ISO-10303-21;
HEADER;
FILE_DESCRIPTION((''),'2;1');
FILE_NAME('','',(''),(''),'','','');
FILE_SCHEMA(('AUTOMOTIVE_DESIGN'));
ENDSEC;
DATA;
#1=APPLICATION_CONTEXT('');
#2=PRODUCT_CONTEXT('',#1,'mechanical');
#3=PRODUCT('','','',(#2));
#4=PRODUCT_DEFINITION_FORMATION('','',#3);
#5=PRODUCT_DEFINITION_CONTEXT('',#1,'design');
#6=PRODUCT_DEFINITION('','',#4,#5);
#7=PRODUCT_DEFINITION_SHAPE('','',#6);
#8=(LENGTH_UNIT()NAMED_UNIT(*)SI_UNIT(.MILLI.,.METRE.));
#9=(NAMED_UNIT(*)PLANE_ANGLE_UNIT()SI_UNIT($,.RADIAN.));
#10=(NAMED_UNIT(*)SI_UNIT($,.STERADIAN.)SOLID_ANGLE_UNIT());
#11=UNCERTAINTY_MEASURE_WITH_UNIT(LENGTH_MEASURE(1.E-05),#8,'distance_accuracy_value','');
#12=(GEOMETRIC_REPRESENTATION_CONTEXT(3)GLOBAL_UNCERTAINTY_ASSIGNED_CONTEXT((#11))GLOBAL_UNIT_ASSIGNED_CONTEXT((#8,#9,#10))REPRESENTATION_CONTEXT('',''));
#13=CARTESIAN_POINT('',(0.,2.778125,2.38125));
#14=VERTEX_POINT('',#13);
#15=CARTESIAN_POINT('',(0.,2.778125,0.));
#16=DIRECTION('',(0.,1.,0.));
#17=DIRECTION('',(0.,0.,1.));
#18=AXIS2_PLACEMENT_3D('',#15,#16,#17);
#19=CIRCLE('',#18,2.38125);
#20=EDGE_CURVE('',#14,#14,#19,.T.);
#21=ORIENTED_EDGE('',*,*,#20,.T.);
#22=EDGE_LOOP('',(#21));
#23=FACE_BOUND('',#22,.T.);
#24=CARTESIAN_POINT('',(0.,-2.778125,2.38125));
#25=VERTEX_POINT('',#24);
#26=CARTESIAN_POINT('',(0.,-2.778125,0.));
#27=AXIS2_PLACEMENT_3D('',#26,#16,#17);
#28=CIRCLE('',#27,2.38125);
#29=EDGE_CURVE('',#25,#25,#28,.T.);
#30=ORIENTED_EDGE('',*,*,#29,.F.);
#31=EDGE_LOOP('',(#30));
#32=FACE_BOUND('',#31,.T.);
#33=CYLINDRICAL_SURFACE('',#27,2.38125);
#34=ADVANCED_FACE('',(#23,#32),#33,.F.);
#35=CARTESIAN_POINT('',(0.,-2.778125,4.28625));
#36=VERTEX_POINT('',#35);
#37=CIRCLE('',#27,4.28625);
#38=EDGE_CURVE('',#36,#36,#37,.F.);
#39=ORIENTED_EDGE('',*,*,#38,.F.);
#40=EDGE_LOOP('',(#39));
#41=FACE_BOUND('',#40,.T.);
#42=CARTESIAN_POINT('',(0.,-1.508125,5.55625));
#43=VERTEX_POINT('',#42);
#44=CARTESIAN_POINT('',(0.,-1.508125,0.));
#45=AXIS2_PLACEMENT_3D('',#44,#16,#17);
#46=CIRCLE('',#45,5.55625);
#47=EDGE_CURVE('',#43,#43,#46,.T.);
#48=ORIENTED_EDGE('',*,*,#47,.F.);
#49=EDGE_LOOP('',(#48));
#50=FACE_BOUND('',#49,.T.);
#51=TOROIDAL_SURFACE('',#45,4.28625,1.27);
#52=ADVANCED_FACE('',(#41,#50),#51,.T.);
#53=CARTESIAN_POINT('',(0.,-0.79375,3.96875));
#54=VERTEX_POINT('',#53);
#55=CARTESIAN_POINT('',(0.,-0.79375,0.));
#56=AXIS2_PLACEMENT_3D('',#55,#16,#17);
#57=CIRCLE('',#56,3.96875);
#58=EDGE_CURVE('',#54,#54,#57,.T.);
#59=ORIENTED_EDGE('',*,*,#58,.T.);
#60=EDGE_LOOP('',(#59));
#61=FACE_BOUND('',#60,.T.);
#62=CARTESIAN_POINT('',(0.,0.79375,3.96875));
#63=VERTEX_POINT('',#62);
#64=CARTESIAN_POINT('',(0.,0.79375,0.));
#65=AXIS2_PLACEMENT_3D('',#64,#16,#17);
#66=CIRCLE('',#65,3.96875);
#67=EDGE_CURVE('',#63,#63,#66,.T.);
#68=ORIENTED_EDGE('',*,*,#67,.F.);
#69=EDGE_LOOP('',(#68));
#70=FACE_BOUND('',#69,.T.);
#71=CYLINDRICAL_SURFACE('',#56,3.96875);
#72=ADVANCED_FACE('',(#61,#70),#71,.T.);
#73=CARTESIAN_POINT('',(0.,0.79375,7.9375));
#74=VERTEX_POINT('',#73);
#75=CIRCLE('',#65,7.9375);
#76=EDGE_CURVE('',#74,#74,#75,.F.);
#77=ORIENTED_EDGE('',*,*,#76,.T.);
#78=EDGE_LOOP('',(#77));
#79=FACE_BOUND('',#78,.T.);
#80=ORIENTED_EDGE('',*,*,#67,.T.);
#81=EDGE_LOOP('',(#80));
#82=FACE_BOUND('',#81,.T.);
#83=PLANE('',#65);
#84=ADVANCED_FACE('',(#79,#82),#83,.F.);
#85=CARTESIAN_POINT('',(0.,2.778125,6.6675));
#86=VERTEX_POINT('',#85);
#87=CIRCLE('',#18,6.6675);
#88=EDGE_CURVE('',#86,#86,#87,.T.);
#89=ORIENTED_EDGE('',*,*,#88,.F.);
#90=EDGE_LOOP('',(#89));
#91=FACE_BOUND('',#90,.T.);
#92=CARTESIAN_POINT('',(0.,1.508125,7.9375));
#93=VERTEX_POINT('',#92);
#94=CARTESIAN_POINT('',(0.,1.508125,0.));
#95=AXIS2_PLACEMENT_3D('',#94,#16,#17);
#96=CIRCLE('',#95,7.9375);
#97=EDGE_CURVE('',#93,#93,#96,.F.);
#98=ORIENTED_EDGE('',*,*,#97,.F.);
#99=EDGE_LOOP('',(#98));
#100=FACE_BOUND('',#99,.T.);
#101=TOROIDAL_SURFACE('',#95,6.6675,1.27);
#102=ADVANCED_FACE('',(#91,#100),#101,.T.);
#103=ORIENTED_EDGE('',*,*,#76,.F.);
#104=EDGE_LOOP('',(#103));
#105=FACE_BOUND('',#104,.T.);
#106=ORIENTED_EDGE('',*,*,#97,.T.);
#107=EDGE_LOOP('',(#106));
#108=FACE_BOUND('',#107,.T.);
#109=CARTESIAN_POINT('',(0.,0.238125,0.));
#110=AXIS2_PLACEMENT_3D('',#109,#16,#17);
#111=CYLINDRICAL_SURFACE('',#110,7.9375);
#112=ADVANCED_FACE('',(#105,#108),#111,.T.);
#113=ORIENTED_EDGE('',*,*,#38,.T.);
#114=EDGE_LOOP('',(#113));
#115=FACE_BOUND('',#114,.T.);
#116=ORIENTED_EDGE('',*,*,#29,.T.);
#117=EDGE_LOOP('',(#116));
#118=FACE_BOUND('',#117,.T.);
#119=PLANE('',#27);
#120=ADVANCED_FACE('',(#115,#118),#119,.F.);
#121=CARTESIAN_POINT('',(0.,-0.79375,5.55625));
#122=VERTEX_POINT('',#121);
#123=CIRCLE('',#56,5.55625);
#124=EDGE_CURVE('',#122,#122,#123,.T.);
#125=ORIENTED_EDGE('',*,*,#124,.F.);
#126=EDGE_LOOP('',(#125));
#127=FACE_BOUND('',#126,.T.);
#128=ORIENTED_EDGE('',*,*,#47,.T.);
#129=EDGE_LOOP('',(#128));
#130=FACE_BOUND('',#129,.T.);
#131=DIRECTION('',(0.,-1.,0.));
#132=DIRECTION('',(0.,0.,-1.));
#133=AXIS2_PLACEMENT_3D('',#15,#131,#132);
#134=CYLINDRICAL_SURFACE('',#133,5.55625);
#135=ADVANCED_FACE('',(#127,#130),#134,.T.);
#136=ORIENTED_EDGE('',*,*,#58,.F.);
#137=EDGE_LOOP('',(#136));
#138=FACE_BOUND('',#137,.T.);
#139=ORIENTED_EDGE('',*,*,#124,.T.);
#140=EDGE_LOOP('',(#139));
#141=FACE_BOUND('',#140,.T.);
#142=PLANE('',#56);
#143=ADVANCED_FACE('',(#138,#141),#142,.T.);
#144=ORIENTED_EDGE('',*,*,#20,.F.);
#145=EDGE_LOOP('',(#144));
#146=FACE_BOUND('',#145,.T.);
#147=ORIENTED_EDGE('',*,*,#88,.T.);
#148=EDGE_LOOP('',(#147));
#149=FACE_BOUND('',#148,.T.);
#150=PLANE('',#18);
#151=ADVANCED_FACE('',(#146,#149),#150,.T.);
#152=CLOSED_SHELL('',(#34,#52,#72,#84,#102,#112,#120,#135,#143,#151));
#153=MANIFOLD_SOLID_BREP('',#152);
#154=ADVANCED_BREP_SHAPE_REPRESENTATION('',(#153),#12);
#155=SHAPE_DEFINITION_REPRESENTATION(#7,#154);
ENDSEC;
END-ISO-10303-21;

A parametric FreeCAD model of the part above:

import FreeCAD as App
import Part
import Sketcher
Q = App.Units.Quantity


def edges_at(feature, points):
    """Names of the edges that pass closest to the given points."""
    edges = feature.Shape.Edges
    near = lambda p: min(range(len(edges)), key=lambda i: edges[i].distToShape(Part.Vertex(*p))[0])
    return sorted({f"Edge{near(p) + 1}" for p in points})

doc = App.newDocument("Part")
body = doc.addObject("PartDesign::Body", "Body")

# Sketch on XZ plane
sketch1 = body.newObject("Sketcher::SketchObject", "Sketch")
sketch1.AttachmentSupport = (doc.getObject("XZ_Plane"), [""])
sketch1.MapMode = "FlatFace"
sketch1.addGeometry(Part.Circle(App.Vector(0, 0, 0), App.Vector(0, 0, 1), 6), False)
sketch1.addConstraint(Sketcher.Constraint("Coincident", 0, 3, -1, 1))
sketch1.addConstraint(Sketcher.Constraint("Diameter", 0, Q("0.4375 in")))
pad1 = body.newObject("PartDesign::Pad", "Pad")
pad1.Profile = sketch1
pad1.Length = Q("0.21875 in")
pad1.Midplane = True

# Sketch on XZ plane
sketch2 = body.newObject("Sketcher::SketchObject", "Sketch001")
sketch2.AttachmentSupport = (doc.getObject("XZ_Plane"), [""])
sketch2.MapMode = "FlatFace"
sketch2.AttachmentOffset = App.Placement(App.Vector(0, 0, -0.109375 * 25.4), App.Rotation())
sketch2.addGeometry(Part.Circle(App.Vector(0, 0, 0), App.Vector(0, 0, 1), 8), False)
sketch2.addConstraint(Sketcher.Constraint("Coincident", 0, 3, -1, 1))
sketch2.addConstraint(Sketcher.Constraint("Diameter", 0, Q("0.625 in")))
pad2 = body.newObject("PartDesign::Pad", "Pad001")
pad2.Profile = sketch2
pad2.Length = Q("0.1 in")

# Sketch on XZ plane
sketch3 = body.newObject("Sketcher::SketchObject", "Sketch002")
sketch3.AttachmentSupport = (doc.getObject("XZ_Plane"), [""])
sketch3.MapMode = "FlatFace"
sketch3.addGeometry(Part.Circle(App.Vector(0, 0, 0), App.Vector(0, 0, 1), 8.1), False)
sketch3.addGeometry(Part.Circle(App.Vector(0, 0, 0), App.Vector(0, 0, 1), 4), False)
sketch3.addConstraint(Sketcher.Constraint("Coincident", 0, 3, -1, 1))
sketch3.addConstraint(Sketcher.Constraint("Coincident", 1, 3, -1, 1))
sketch3.addConstraint(Sketcher.Constraint("Diameter", 1, Q("0.3125 in")))
sketch3.addConstraint(Sketcher.Constraint("Diameter", 0, Q("16.141617 mm")))
pocket1 = body.newObject("PartDesign::Pocket", "Pocket")
pocket1.Profile = sketch3
pocket1.Length = Q("0.0625 in")
pocket1.Midplane = True

# Sketch on XZ plane
sketch4 = body.newObject("Sketcher::SketchObject", "Sketch003")
sketch4.AttachmentSupport = (doc.getObject("XZ_Plane"), [""])
sketch4.MapMode = "FlatFace"
sketch4.AttachmentOffset = App.Placement(App.Vector(0, 0, -0.109375 * 25.4), App.Rotation())
sketch4.addGeometry(Part.Circle(App.Vector(0, 0, 0), App.Vector(0, 0, 1), 2.4), False)
sketch4.addConstraint(Sketcher.Constraint("Coincident", 0, 3, -1, 1))
sketch4.addConstraint(Sketcher.Constraint("Diameter", 0, Q("0.1875 in")))
pocket2 = body.newObject("PartDesign::Pocket", "Pocket001")
pocket2.Profile = sketch4
pocket2.Type = "ThroughAll"
pocket2.Reversed = True
doc.recompute()

fillet = body.newObject("PartDesign::Fillet", "Fillet")
fillet.Base = (pocket2, edges_at(pocket2, [(0, -2.778, -5.556), (0, 2.778, -7.938)]))
fillet.Radius = Q("0.05 in")

doc.recompute()
